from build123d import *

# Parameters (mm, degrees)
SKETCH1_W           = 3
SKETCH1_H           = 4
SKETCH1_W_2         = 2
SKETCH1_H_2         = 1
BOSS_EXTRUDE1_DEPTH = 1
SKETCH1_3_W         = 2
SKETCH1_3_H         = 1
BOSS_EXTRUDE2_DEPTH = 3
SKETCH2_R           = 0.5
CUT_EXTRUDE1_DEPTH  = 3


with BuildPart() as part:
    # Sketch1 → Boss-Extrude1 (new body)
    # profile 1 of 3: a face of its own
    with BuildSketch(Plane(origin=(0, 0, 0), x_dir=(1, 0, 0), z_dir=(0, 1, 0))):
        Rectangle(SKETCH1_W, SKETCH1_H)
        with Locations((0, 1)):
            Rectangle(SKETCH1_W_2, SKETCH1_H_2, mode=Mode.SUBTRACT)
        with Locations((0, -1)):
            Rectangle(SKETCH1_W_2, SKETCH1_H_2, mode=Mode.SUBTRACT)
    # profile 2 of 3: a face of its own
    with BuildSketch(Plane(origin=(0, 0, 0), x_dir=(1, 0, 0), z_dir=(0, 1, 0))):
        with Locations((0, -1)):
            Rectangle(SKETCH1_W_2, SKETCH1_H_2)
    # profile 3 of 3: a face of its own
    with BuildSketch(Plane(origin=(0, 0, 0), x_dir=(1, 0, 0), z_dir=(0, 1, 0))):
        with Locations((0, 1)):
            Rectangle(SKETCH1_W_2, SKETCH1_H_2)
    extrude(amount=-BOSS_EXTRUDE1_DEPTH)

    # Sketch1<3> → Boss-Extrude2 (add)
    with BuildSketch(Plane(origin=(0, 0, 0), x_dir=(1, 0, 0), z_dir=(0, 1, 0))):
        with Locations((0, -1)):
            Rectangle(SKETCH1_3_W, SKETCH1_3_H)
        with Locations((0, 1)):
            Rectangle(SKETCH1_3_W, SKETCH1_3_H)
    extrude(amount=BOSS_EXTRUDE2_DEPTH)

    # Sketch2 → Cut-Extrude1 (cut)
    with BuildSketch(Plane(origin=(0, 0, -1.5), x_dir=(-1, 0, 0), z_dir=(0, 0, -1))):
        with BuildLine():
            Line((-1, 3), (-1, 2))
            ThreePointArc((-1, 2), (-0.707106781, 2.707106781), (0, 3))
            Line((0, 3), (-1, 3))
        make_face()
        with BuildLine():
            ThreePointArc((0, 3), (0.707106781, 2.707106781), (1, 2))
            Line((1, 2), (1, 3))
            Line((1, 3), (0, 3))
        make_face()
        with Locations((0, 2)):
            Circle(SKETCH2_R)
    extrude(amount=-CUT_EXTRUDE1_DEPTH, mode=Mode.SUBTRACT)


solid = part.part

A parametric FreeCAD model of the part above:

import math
import FreeCAD as App
import Part
import Sketcher

V = App.Vector

doc = App.newDocument("Part")
params = doc.addObject("Spreadsheet::Sheet", "Params")
for row, (alias, value) in enumerate([
    ("sketch1_width", "3 mm"),
    ("sketch1_height", "4 mm"),
    ("pad1_length", "1 mm"),
    ("sketch2_width", "2 mm"),
    ("sketch2_height", "1 mm"),
    ("pad2_length", "3 mm"),
    ("sketch3_diameter", "1 mm"),
    ("sketch3_radius", "1 mm"),
    ("pocket1_length", "3 mm"),
], start=1):
    params.set(f"A{row}", alias)
    params.set(f"B{row}", "=" + value)
    params.setAlias(f"B{row}", alias)

body = doc.addObject("PartDesign::Body", "Body")

# Sketch on XZ plane
sketch1 = body.newObject("Sketcher::SketchObject", "Sketch")
sketch1.AttachmentSupport = (doc.getObject("XZ_Plane"), [""])
sketch1.MapMode = "FlatFace"
sketch1.addGeometry([
    Part.LineSegment(V(-1.5, -2, 0), V(-1.5, 2, 0)),
    Part.LineSegment(V(-1.5, 2, 0), V(1.5, 2, 0)),
    Part.LineSegment(V(1.5, 2, 0), V(1.5, -2, 0)),
    Part.LineSegment(V(1.5, -2, 0), V(-1.5, -2, 0)),
], False)
sketch1.addConstraint([
    Sketcher.Constraint("Coincident", 0, 2, 1, 1),
    Sketcher.Constraint("Coincident", 1, 2, 2, 1),
    Sketcher.Constraint("Coincident", 2, 2, 3, 1),
    Sketcher.Constraint("Coincident", 3, 2, 0, 1),
    Sketcher.Constraint("Vertical", 0),
    Sketcher.Constraint("Horizontal", 1),
    Sketcher.Constraint("Vertical", 2),
    Sketcher.Constraint("Horizontal", 3),
    Sketcher.Constraint("Symmetric", 0, 2, 2, 2, -1, 1),
    Sketcher.Constraint("DistanceX", 1, 1, 1, 2, 3.0),
    Sketcher.Constraint("DistanceY", 0, 1, 0, 2, 4.0),
])
sketch1.setExpression("Constraints[9]", "Params.sketch1_width")
sketch1.setExpression("Constraints[10]", "Params.sketch1_height")
pad1 = body.newObject("PartDesign::Pad", "Pad")
pad1.Profile = sketch1
pad1.setExpression("Length", "Params.pad1_length")

# Sketch on XZ plane
sketch2 = body.newObject("Sketcher::SketchObject", "Sketch001")
sketch2.AttachmentSupport = (doc.getObject("XZ_Plane"), [""])
sketch2.MapMode = "FlatFace"
sketch2.addGeometry([
    Part.LineSegment(V(-1, 0.5, 0), V(-1, 1.5, 0)),  # 0
    Part.LineSegment(V(-1, 1.5, 0), V(1, 1.5, 0)),  # 1
    Part.LineSegment(V(1, 1.5, 0), V(1, 0.5, 0)),  # 2
    Part.LineSegment(V(1, 0.5, 0), V(-1, 0.5, 0)),  # 3
    Part.LineSegment(V(-1, -1.5, 0), V(-1, -0.5, 0)),  # 4
    Part.LineSegment(V(-1, -0.5, 0), V(1, -0.5, 0)),  # 5
    Part.LineSegment(V(1, -0.5, 0), V(1, -1.5, 0)),  # 6
    Part.LineSegment(V(1, -1.5, 0), V(-1, -1.5, 0)),  # 7
], False)
sketch2.addConstraint([
    Sketcher.Constraint("Coincident", 0, 2, 1, 1),
    Sketcher.Constraint("Coincident", 1, 2, 2, 1),
    Sketcher.Constraint("Coincident", 2, 2, 3, 1),
    Sketcher.Constraint("Coincident", 3, 2, 0, 1),
    Sketcher.Constraint("Coincident", 4, 2, 5, 1),
    Sketcher.Constraint("Coincident", 5, 2, 6, 1),
    Sketcher.Constraint("Coincident", 6, 2, 7, 1),
    Sketcher.Constraint("Coincident", 7, 2, 4, 1),
    Sketcher.Constraint("Vertical", 0),
    Sketcher.Constraint("Horizontal", 1),
    Sketcher.Constraint("Vertical", 2),
    Sketcher.Constraint("Horizontal", 3),
    Sketcher.Constraint("Vertical", 4),
    Sketcher.Constraint("Horizontal", 5),
    Sketcher.Constraint("Vertical", 6),
    Sketcher.Constraint("Horizontal", 7),
    Sketcher.Constraint("Symmetric", 2, 2, 4, 2, -1, 1),
    Sketcher.Constraint("Symmetric", 0, 2, 6, 2, -1, 1),
    Sketcher.Constraint("Vertical", 3, 2, 4, 2),
    Sketcher.Constraint("DistanceX", 1, 1, 1, 2, 2.0),
    Sketcher.Constraint("DistanceY", 0, 1, 0, 2, 1.0),
    Sketcher.Constraint("DistanceY", 4, 2, 3, 2, 1.0),
])
sketch2.setExpression("Constraints[19]", "Params.sketch2_width")
sketch2.setExpression("Constraints[20]", "Params.sketch2_height")
pad2 = body.newObject("PartDesign::Pad", "Pad001")
pad2.Profile = sketch2
pad2.setExpression("Length", "Params.pad2_length")
pad2.Reversed = True

# Sketch on XY plane
sketch3 = body.newObject("Sketcher::SketchObject", "Sketch002")
sketch3.AttachmentSupport = (doc.getObject("XY_Plane"), [""])
sketch3.MapMode = "FlatFace"
sketch3.AttachmentOffset = App.Placement(V(0, 0, -1.5), App.Rotation())
sketch3.addGeometry([
    Part.LineSegment(V(1, 3, 0), V(1, 2, 0)),  # 0
    Part.ArcOfCircle(Part.Circle(V(0, 2, 0), V(0, 0, 1), 1), math.radians(0), math.radians(90)),  # 1
    Part.LineSegment(V(0, 3, 0), V(1, 3, 0)),  # 2
    Part.ArcOfCircle(Part.Circle(V(0, 2, 0), V(0, 0, 1), 1), math.radians(90), math.radians(180)),  # 3
    Part.LineSegment(V(-1, 2, 0), V(-1, 3, 0)),  # 4
    Part.LineSegment(V(-1, 3, 0), V(0, 3, 0)),  # 5
    Part.Circle(V(0, 2, 0), V(0, 0, 1), 0.5),  # 6
], False)
sketch3.addConstraint([
    Sketcher.Constraint("Tangent", 0, 2, 1, 1),
    Sketcher.Constraint("Tangent", 1, 2, 2, 1),
    Sketcher.Constraint("Coincident", 2, 2, 0, 1),
    Sketcher.Constraint("Tangent", 3, 2, 4, 1),
    Sketcher.Constraint("Coincident", 4, 2, 5, 1),
    Sketcher.Constraint("Tangent", 5, 2, 3, 1),
    Sketcher.Constraint("Vertical", 0),
    Sketcher.Constraint("Horizontal", 2),
    Sketcher.Constraint("Vertical", 4),
    Sketcher.Constraint("Horizontal", 5),
    Sketcher.Constraint("Coincident", 3, 3, 1, 3),
    Sketcher.Constraint("Coincident", 6, 3, 1, 3),
    Sketcher.Constraint("Equal", 1, 3),
    Sketcher.Constraint("PointOnObject", 1, 3, -2),
    Sketcher.Constraint("Diameter", 6, 1.0),
    Sketcher.Constraint("Radius", 1, 1.0),
    Sketcher.Constraint("DistanceY", -1, 1, 1, 3, 2.0),
])
sketch3.setExpression("Constraints[14]", "Params.sketch3_diameter")
sketch3.setExpression("Constraints[15]", "Params.sketch3_radius")
pocket1 = body.newObject("PartDesign::Pocket", "Pocket")
pocket1.Profile = sketch3
pocket1.setExpression("Length", "Params.pocket1_length")
pocket1.Reversed = True

doc.recompute()
